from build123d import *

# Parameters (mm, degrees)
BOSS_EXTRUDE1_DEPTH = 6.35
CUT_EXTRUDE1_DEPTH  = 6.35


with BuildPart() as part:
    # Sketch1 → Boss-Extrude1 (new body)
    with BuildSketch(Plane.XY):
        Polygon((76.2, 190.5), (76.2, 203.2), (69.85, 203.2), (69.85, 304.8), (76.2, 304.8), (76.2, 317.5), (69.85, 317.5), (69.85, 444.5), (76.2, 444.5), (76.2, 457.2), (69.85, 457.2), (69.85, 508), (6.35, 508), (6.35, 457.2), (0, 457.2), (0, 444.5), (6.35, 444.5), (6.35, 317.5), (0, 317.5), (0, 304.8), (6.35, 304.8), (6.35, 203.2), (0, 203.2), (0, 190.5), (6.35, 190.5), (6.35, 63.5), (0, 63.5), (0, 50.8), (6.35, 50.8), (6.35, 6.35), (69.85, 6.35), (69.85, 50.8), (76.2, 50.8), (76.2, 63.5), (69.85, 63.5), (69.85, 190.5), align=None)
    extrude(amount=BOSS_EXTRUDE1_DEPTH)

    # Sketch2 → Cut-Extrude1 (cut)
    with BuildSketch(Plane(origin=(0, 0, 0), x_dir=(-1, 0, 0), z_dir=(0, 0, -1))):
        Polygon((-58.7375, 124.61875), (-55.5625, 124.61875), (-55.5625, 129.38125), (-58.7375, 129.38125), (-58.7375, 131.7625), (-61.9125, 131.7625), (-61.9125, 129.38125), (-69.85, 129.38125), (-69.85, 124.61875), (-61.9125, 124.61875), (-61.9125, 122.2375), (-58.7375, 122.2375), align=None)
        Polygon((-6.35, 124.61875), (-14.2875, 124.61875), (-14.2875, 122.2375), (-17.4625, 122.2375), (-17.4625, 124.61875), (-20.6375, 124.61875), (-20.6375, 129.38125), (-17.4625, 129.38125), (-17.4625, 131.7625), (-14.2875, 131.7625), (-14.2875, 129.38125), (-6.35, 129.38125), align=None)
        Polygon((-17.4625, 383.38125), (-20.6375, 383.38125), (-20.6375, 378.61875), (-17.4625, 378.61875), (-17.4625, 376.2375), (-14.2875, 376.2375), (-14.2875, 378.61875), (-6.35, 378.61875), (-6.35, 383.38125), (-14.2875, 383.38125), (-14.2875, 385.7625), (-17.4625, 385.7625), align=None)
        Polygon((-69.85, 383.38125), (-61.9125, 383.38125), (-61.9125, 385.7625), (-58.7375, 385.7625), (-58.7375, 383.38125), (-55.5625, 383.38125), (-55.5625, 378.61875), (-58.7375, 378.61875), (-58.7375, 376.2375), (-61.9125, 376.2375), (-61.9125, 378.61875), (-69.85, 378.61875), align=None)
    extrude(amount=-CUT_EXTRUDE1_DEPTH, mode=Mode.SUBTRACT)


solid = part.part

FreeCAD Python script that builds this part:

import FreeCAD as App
import Part
import Sketcher

V = App.Vector
Q = App.Units.Quantity

doc = App.newDocument("Part")
body = doc.addObject("PartDesign::Body", "Body")

sketch1 = body.newObject("Sketcher::SketchObject", "Sketch")
sketch1.AttachmentSupport = (doc.getObject("XY_Plane"), [""])
sketch1.MapMode = "FlatFace"
sketch1.addGeometry([
    Part.LineSegment(V(76, 190, 0), V(76, 203, 0)),
    Part.LineSegment(V(76, 203, 0), V(70, 203, 0)),
    Part.LineSegment(V(70, 203, 0), V(70, 305, 0)),
    Part.LineSegment(V(70, 305, 0), V(76, 305, 0)),
    Part.LineSegment(V(76, 305, 0), V(76, 318, 0)),
    Part.LineSegment(V(76, 318, 0), V(70, 318, 0)),
    Part.LineSegment(V(70, 318, 0), V(70, 444, 0)),
    Part.LineSegment(V(70, 444, 0), V(76, 444, 0)),
    Part.LineSegment(V(76, 444, 0), V(76, 457, 0)),
    Part.LineSegment(V(76, 457, 0), V(70, 457, 0)),
    Part.LineSegment(V(70, 457, 0), V(70, 508, 0)),
    Part.LineSegment(V(70, 508, 0), V(6, 508, 0)),
    Part.LineSegment(V(6, 508, 0), V(6, 457, 0)),
    Part.LineSegment(V(6, 457, 0), V(0, 457, 0)),
    Part.LineSegment(V(0, 457, 0), V(0, 444, 0)),
    Part.LineSegment(V(0, 444, 0), V(6, 444, 0)),
    Part.LineSegment(V(6, 444, 0), V(6, 318, 0)),
    Part.LineSegment(V(6, 318, 0), V(0, 318, 0)),
    Part.LineSegment(V(0, 318, 0), V(0, 305, 0)),
    Part.LineSegment(V(0, 305, 0), V(6, 305, 0)),
    Part.LineSegment(V(6, 305, 0), V(6, 203, 0)),
    Part.LineSegment(V(6, 203, 0), V(0, 203, 0)),
    Part.LineSegment(V(0, 203, 0), V(0, 190, 0)),
    Part.LineSegment(V(0, 190, 0), V(6, 190, 0)),
    Part.LineSegment(V(6, 190, 0), V(6, 64, 0)),
    Part.LineSegment(V(6, 64, 0), V(0, 64, 0)),
    Part.LineSegment(V(0, 64, 0), V(0, 51, 0)),
    Part.LineSegment(V(0, 51, 0), V(6, 51, 0)),
    Part.LineSegment(V(6, 51, 0), V(6, 6, 0)),
    Part.LineSegment(V(6, 6, 0), V(70, 6, 0)),
    Part.LineSegment(V(70, 6, 0), V(70, 51, 0)),
    Part.LineSegment(V(70, 51, 0), V(76, 51, 0)),
    Part.LineSegment(V(76, 51, 0), V(76, 64, 0)),
    Part.LineSegment(V(76, 64, 0), V(70, 64, 0)),
    Part.LineSegment(V(70, 64, 0), V(70, 190, 0)),
    Part.LineSegment(V(70, 190, 0), V(76, 190, 0)),
], False)
sketch1.addConstraint([
    Sketcher.Constraint("Coincident", 0, 2, 1, 1),
    Sketcher.Constraint("Coincident", 1, 2, 2, 1),
    Sketcher.Constraint("Coincident", 2, 2, 3, 1),
    Sketcher.Constraint("Coincident", 3, 2, 4, 1),
    Sketcher.Constraint("Coincident", 4, 2, 5, 1),
    Sketcher.Constraint("Coincident", 5, 2, 6, 1),
    Sketcher.Constraint("Coincident", 6, 2, 7, 1),
    Sketcher.Constraint("Coincident", 7, 2, 8, 1),
    Sketcher.Constraint("Coincident", 8, 2, 9, 1),
    Sketcher.Constraint("Coincident", 9, 2, 10, 1),
    Sketcher.Constraint("Coincident", 10, 2, 11, 1),
    Sketcher.Constraint("Coincident", 11, 2, 12, 1),
    Sketcher.Constraint("Coincident", 12, 2, 13, 1),
    Sketcher.Constraint("Coincident", 13, 2, 14, 1),
    Sketcher.Constraint("Coincident", 14, 2, 15, 1),
    Sketcher.Constraint("Coincident", 15, 2, 16, 1),
    Sketcher.Constraint("Coincident", 16, 2, 17, 1),
    Sketcher.Constraint("Coincident", 17, 2, 18, 1),
    Sketcher.Constraint("Coincident", 18, 2, 19, 1),
    Sketcher.Constraint("Coincident", 19, 2, 20, 1),
    Sketcher.Constraint("Coincident", 20, 2, 21, 1),
    Sketcher.Constraint("Coincident", 21, 2, 22, 1),
    Sketcher.Constraint("Coincident", 22, 2, 23, 1),
    Sketcher.Constraint("Coincident", 23, 2, 24, 1),
    Sketcher.Constraint("Coincident", 24, 2, 25, 1),
    Sketcher.Constraint("Coincident", 25, 2, 26, 1),
    Sketcher.Constraint("Coincident", 26, 2, 27, 1),
    Sketcher.Constraint("Coincident", 27, 2, 28, 1),
    Sketcher.Constraint("Coincident", 28, 2, 29, 1),
    Sketcher.Constraint("Coincident", 29, 2, 30, 1),
    Sketcher.Constraint("Coincident", 30, 2, 31, 1),
    Sketcher.Constraint("Coincident", 31, 2, 32, 1),
    Sketcher.Constraint("Coincident", 32, 2, 33, 1),
    Sketcher.Constraint("Coincident", 33, 2, 34, 1),
    Sketcher.Constraint("Coincident", 34, 2, 35, 1),
    Sketcher.Constraint("Coincident", 35, 2, 0, 1),
    Sketcher.Constraint("Vertical", 0),
    Sketcher.Constraint("Horizontal", 1),
    Sketcher.Constraint("Vertical", 2),
    Sketcher.Constraint("Horizontal", 3),
    Sketcher.Constraint("Vertical", 4),
    Sketcher.Constraint("Horizontal", 5),
    Sketcher.Constraint("Vertical", 6),
    Sketcher.Constraint("Horizontal", 7),
    Sketcher.Constraint("Vertical", 8),
    Sketcher.Constraint("Horizontal", 9),
    Sketcher.Constraint("Vertical", 10),
    Sketcher.Constraint("Horizontal", 11),
    Sketcher.Constraint("Vertical", 12),
    Sketcher.Constraint("Horizontal", 13),
    Sketcher.Constraint("Vertical", 14),
    Sketcher.Constraint("Horizontal", 15),
    Sketcher.Constraint("Vertical", 16),
    Sketcher.Constraint("Horizontal", 17),
    Sketcher.Constraint("Vertical", 18),
    Sketcher.Constraint("Horizontal", 19),
    Sketcher.Constraint("Vertical", 20),
    Sketcher.Constraint("Horizontal", 21),
    Sketcher.Constraint("Vertical", 22),
    Sketcher.Constraint("Horizontal", 23),
    Sketcher.Constraint("Vertical", 24),
    Sketcher.Constraint("Horizontal", 25),
    Sketcher.Constraint("Vertical", 26),
    Sketcher.Constraint("Horizontal", 27),
    Sketcher.Constraint("Vertical", 28),
    Sketcher.Constraint("Horizontal", 29),
    Sketcher.Constraint("Vertical", 30),
    Sketcher.Constraint("Horizontal", 31),
    Sketcher.Constraint("Vertical", 32),
    Sketcher.Constraint("Horizontal", 33),
    Sketcher.Constraint("Vertical", 34),
    Sketcher.Constraint("Horizontal", 35),
    Sketcher.Constraint("PointOnObject", 13, 2, -2),
    Sketcher.Constraint("PointOnObject", 17, 2, -2),
    Sketcher.Constraint("PointOnObject", 21, 2, -2),
    Sketcher.Constraint("PointOnObject", 25, 2, -2),
    Sketcher.Constraint("Horizontal", 9, 2, 12, 2),
    Sketcher.Constraint("Horizontal", 7, 2, 14, 2),
    Sketcher.Constraint("Horizontal", 5, 2, 16, 2),
    Sketcher.Constraint("Horizontal", 3, 2, 18, 2),
    Sketcher.Constraint("Horizontal", 1, 2, 20, 2),
    Sketcher.Constraint("Horizontal", 27, 2, 30, 2),
    Sketcher.Constraint("Horizontal", 25, 2, 32, 2),
    Sketcher.Constraint("Horizontal", 23, 2, 34, 2),
    Sketcher.Constraint("Vertical", 0, 2, 3, 2),
    Sketcher.Constraint("Vertical", 2, 2, 5, 2),
    Sketcher.Constraint("Vertical", 4, 2, 7, 2),
    Sketcher.Constraint("Vertical", 6, 2, 9, 2),
    Sketcher.Constraint("Vertical", 12, 2, 15, 2),
    Sketcher.Constraint("Vertical", 16, 2, 19, 2),
    Sketcher.Constraint("Vertical", 20, 2, 23, 2),
    Sketcher.Constraint("Vertical", 24, 2, 27, 2),
    Sketcher.Constraint("Vertical", 10, 2, 29, 2),
    Sketcher.Constraint("Vertical", 8, 2, 31, 2),
    Sketcher.Constraint("Vertical", 30, 2, 33, 2),
    Sketcher.Constraint("Equal", 9, 13),
    Sketcher.Constraint("Equal", 0, 4),
    Sketcher.Constraint("Equal", 4, 8),
    Sketcher.Constraint("Equal", 16, 24),
    Sketcher.Constraint("Equal", 22, 26),
    Sketcher.Constraint("DistanceY", 2, 1, 2, 2, Q("4 in")),
    Sketcher.Constraint("DistanceY", 6, 1, 6, 2, Q("5 in")),
    Sketcher.Constraint("DistanceY", 10, 1, 10, 2, Q("2 in")),
    Sketcher.Constraint("DistanceX", 11, 2, 11, 1, Q("2.5 in")),
    Sketcher.Constraint("DistanceY", 0, 1, 0, 2, Q("0.5 in")),
    Sketcher.Constraint("DistanceX", -1, 1, 0, 2, Q("3 in")),
    Sketcher.Constraint("DistanceY", -1, 1, 0, 2, Q("8 in")),
    Sketcher.Constraint("DistanceY", 28, 2, 28, 1, Q("1.75 in")),
])
pad1 = body.newObject("PartDesign::Pad", "Pad")
pad1.Profile = sketch1
pad1.Length = Q("0.25 in")

sketch2 = body.newObject("Sketcher::SketchObject", "Sketch001")
sketch2.AttachmentSupport = (doc.getObject("XY_Plane"), [""])
sketch2.MapMode = "FlatFace"
sketch2.addGeometry([
    Part.LineSegment(V(58.7, 124.6, 0), V(55.6, 124.6, 0)),
    Part.LineSegment(V(55.6, 124.6, 0), V(55.6, 129.4, 0)),
    Part.LineSegment(V(55.6, 129.4, 0), V(58.7, 129.4, 0)),
    Part.LineSegment(V(58.7, 129.4, 0), V(58.7, 131.8, 0)),
    Part.LineSegment(V(58.7, 131.8, 0), V(61.9, 131.8, 0)),
    Part.LineSegment(V(61.9, 131.8, 0), V(61.9, 129.4, 0)),
    Part.LineSegment(V(61.9, 129.4, 0), V(69.8, 129.4, 0)),
    Part.LineSegment(V(69.8, 129.4, 0), V(69.8, 124.6, 0)),
    Part.LineSegment(V(69.8, 124.6, 0), V(61.9, 124.6, 0)),
    Part.LineSegment(V(61.9, 124.6, 0), V(61.9, 122.2, 0)),
    Part.LineSegment(V(61.9, 122.2, 0), V(58.7, 122.2, 0)),
    Part.LineSegment(V(58.7, 122.2, 0), V(58.7, 124.6, 0)),
    Part.LineSegment(V(14.3, 124.6, 0), V(6.3, 124.6, 0)),
    Part.LineSegment(V(6.3, 124.6, 0), V(6.3, 129.4, 0)),
    Part.LineSegment(V(6.3, 129.4, 0), V(14.3, 129.4, 0)),
    Part.LineSegment(V(14.3, 129.4, 0), V(14.3, 131.8, 0)),
    Part.LineSegment(V(14.3, 131.8, 0), V(17.5, 131.8, 0)),
    Part.LineSegment(V(17.5, 131.8, 0), V(17.5, 129.4, 0)),
    Part.LineSegment(V(17.5, 129.4, 0), V(20.6, 129.4, 0)),
    Part.LineSegment(V(20.6, 129.4, 0), V(20.6, 124.6, 0)),
    Part.LineSegment(V(20.6, 124.6, 0), V(17.5, 124.6, 0)),
    Part.LineSegment(V(17.5, 124.6, 0), V(17.5, 122.2, 0)),
    Part.LineSegment(V(17.5, 122.2, 0), V(14.3, 122.2, 0)),
    Part.LineSegment(V(14.3, 122.2, 0), V(14.3, 124.6, 0)),
    Part.LineSegment(V(17.5, 383.4, 0), V(20.6, 383.4, 0)),
    Part.LineSegment(V(20.6, 383.4, 0), V(20.6, 378.6, 0)),
    Part.LineSegment(V(20.6, 378.6, 0), V(17.5, 378.6, 0)),
    Part.LineSegment(V(17.5, 378.6, 0), V(17.5, 376.2, 0)),
    Part.LineSegment(V(17.5, 376.2, 0), V(14.3, 376.2, 0)),
    Part.LineSegment(V(14.3, 376.2, 0), V(14.3, 378.6, 0)),
    Part.LineSegment(V(14.3, 378.6, 0), V(6.3, 378.6, 0)),
    Part.LineSegment(V(6.3, 378.6, 0), V(6.3, 383.4, 0)),
    Part.LineSegment(V(6.3, 383.4, 0), V(14.3, 383.4, 0)),
    Part.LineSegment(V(14.3, 383.4, 0), V(14.3, 385.8, 0)),
    Part.LineSegment(V(14.3, 385.8, 0), V(17.5, 385.8, 0)),
    Part.LineSegment(V(17.5, 385.8, 0), V(17.5, 383.4, 0)),
    Part.LineSegment(V(61.9, 383.4, 0), V(69.8, 383.4, 0)),
    Part.LineSegment(V(69.8, 383.4, 0), V(69.8, 378.6, 0)),
    Part.LineSegment(V(69.8, 378.6, 0), V(61.9, 378.6, 0)),
    Part.LineSegment(V(61.9, 378.6, 0), V(61.9, 376.2, 0)),
    Part.LineSegment(V(61.9, 376.2, 0), V(58.7, 376.2, 0)),
    Part.LineSegment(V(58.7, 376.2, 0), V(58.7, 378.6, 0)),
    Part.LineSegment(V(58.7, 378.6, 0), V(55.6, 378.6, 0)),
    Part.LineSegment(V(55.6, 378.6, 0), V(55.6, 383.4, 0)),
    Part.LineSegment(V(55.6, 383.4, 0), V(58.7, 383.4, 0)),
    Part.LineSegment(V(58.7, 383.4, 0), V(58.7, 385.8, 0)),
    Part.LineSegment(V(58.7, 385.8, 0), V(61.9, 385.8, 0)),
    Part.LineSegment(V(61.9, 385.8, 0), V(61.9, 383.4, 0)),
], False)
sketch2.addConstraint([
    Sketcher.Constraint("Coincident", 0, 2, 1, 1),
    Sketcher.Constraint("Coincident", 1, 2, 2, 1),
    Sketcher.Constraint("Coincident", 2, 2, 3, 1),
    Sketcher.Constraint("Coincident", 3, 2, 4, 1),
    Sketcher.Constraint("Coincident", 4, 2, 5, 1),
    Sketcher.Constraint("Coincident", 5, 2, 6, 1),
    Sketcher.Constraint("Coincident", 6, 2, 7, 1),
    Sketcher.Constraint("Coincident", 7, 2, 8, 1),
    Sketcher.Constraint("Coincident", 8, 2, 9, 1),
    Sketcher.Constraint("Coincident", 9, 2, 10, 1),
    Sketcher.Constraint("Coincident", 10, 2, 11, 1),
    Sketcher.Constraint("Coincident", 11, 2, 0, 1),
    Sketcher.Constraint("Coincident", 12, 2, 13, 1),
    Sketcher.Constraint("Coincident", 13, 2, 14, 1),
    Sketcher.Constraint("Coincident", 14, 2, 15, 1),
    Sketcher.Constraint("Coincident", 15, 2, 16, 1),
    Sketcher.Constraint("Coincident", 16, 2, 17, 1),
    Sketcher.Constraint("Coincident", 17, 2, 18, 1),
    Sketcher.Constraint("Coincident", 18, 2, 19, 1),
    Sketcher.Constraint("Coincident", 19, 2, 20, 1),
    Sketcher.Constraint("Coincident", 20, 2, 21, 1),
    Sketcher.Constraint("Coincident", 21, 2, 22, 1),
    Sketcher.Constraint("Coincident", 22, 2, 23, 1),
    Sketcher.Constraint("Coincident", 23, 2, 12, 1),
    Sketcher.Constraint("Coincident", 24, 2, 25, 1),
    Sketcher.Constraint("Coincident", 25, 2, 26, 1),
    Sketcher.Constraint("Coincident", 26, 2, 27, 1),
    Sketcher.Constraint("Coincident", 27, 2, 28, 1),
    Sketcher.Constraint("Coincident", 28, 2, 29, 1),
    Sketcher.Constraint("Coincident", 29, 2, 30, 1),
    Sketcher.Constraint("Coincident", 30, 2, 31, 1),
    Sketcher.Constraint("Coincident", 31, 2, 32, 1),
    Sketcher.Constraint("Coincident", 32, 2, 33, 1),
    Sketcher.Constraint("Coincident", 33, 2, 34, 1),
    Sketcher.Constraint("Coincident", 34, 2, 35, 1),
    Sketcher.Constraint("Coincident", 35, 2, 24, 1),
    Sketcher.Constraint("Coincident", 36, 2, 37, 1),
    Sketcher.Constraint("Coincident", 37, 2, 38, 1),
    Sketcher.Constraint("Coincident", 38, 2, 39, 1),
    Sketcher.Constraint("Coincident", 39, 2, 40, 1),
    Sketcher.Constraint("Coincident", 40, 2, 41, 1),
    Sketcher.Constraint("Coincident", 41, 2, 42, 1),
    Sketcher.Constraint("Coincident", 42, 2, 43, 1),
    Sketcher.Constraint("Coincident", 43, 2, 44, 1),
    Sketcher.Constraint("Coincident", 44, 2, 45, 1),
    Sketcher.Constraint("Coincident", 45, 2, 46, 1),
    Sketcher.Constraint("Coincident", 46, 2, 47, 1),
    Sketcher.Constraint("Coincident", 47, 2, 36, 1),
    Sketcher.Constraint("Horizontal", 0),
    Sketcher.Constraint("Vertical", 1),
    Sketcher.Constraint("Horizontal", 2),
    Sketcher.Constraint("Vertical", 3),
    Sketcher.Constraint("Horizontal", 4),
    Sketcher.Constraint("Vertical", 5),
    Sketcher.Constraint("Horizontal", 6),
    Sketcher.Constraint("Vertical", 7),
    Sketcher.Constraint("Horizontal", 8),
    Sketcher.Constraint("Vertical", 9),
    Sketcher.Constraint("Horizontal", 10),
    Sketcher.Constraint("Vertical", 11),
    Sketcher.Constraint("Horizontal", 12),
    Sketcher.Constraint("Vertical", 13),
    Sketcher.Constraint("Horizontal", 14),
    Sketcher.Constraint("Vertical", 15),
    Sketcher.Constraint("Horizontal", 16),
    Sketcher.Constraint("Vertical", 17),
    Sketcher.Constraint("Horizontal", 18),
    Sketcher.Constraint("Vertical", 19),
    Sketcher.Constraint("Horizontal", 20),
    Sketcher.Constraint("Vertical", 21),
    Sketcher.Constraint("Horizontal", 22),
    Sketcher.Constraint("Vertical", 23),
    Sketcher.Constraint("Horizontal", 24),
    Sketcher.Constraint("Vertical", 25),
    Sketcher.Constraint("Horizontal", 26),
    Sketcher.Constraint("Vertical", 27),
    Sketcher.Constraint("Horizontal", 28),
    Sketcher.Constraint("Vertical", 29),
    Sketcher.Constraint("Horizontal", 30),
    Sketcher.Constraint("Vertical", 31),
    Sketcher.Constraint("Horizontal", 32),
    Sketcher.Constraint("Vertical", 33),
    Sketcher.Constraint("Horizontal", 34),
    Sketcher.Constraint("Vertical", 35),
    Sketcher.Constraint("Horizontal", 36),
    Sketcher.Constraint("Vertical", 37),
    Sketcher.Constraint("Horizontal", 38),
    Sketcher.Constraint("Vertical", 39),
    Sketcher.Constraint("Horizontal", 40),
    Sketcher.Constraint("Vertical", 41),
    Sketcher.Constraint("Horizontal", 42),
    Sketcher.Constraint("Vertical", 43),
    Sketcher.Constraint("Horizontal", 44),
    Sketcher.Constraint("Vertical", 45),
    Sketcher.Constraint("Horizontal", 46),
    Sketcher.Constraint("Vertical", 47),
    Sketcher.Constraint("Horizontal", 2, 2, 5, 2),
    Sketcher.Constraint("Horizontal", 0, 2, 7, 2),
    Sketcher.Constraint("Horizontal", 11, 2, 12, 2),
    Sketcher.Constraint("Horizontal", 6, 2, 13, 2),
    Sketcher.Constraint("Horizontal", 4, 2, 15, 2),
    Sketcher.Constraint("Horizontal", 14, 2, 17, 2),
    Sketcher.Constraint("Horizontal", 12, 2, 19, 2),
    Sketcher.Constraint("Horizontal", 10, 2, 21, 2),
    Sketcher.Constraint("Horizontal", 26, 2, 29, 2),
    Sketcher.Constraint("Horizontal", 24, 2, 31, 2),
    Sketcher.Constraint("Horizontal", 35, 2, 36, 2),
    Sketcher.Constraint("Horizontal", 30, 2, 37, 2),
    Sketcher.Constraint("Horizontal", 28, 2, 39, 2),
    Sketcher.Constraint("Horizontal", 38, 2, 41, 2),
    Sketcher.Constraint("Horizontal", 36, 2, 43, 2),
    Sketcher.Constraint("Horizontal", 34, 2, 45, 2),
    Sketcher.Constraint("Vertical", 5, 2, 8, 2),
    Sketcher.Constraint("Vertical", 3, 2, 10, 2),
    Sketcher.Constraint("Vertical", 17, 2, 20, 2),
    Sketcher.Constraint("Vertical", 15, 2, 22, 2),
    Sketcher.Constraint("Vertical", 19, 2, 24, 2),
    Sketcher.Constraint("Vertical", 21, 2, 26, 2),
    Sketcher.Constraint("Vertical", 23, 2, 28, 2),
    Sketcher.Constraint("Vertical", 13, 2, 30, 2),
    Sketcher.Constraint("Vertical", 29, 2, 32, 2),
    Sketcher.Constraint("Vertical", 27, 2, 34, 2),
    Sketcher.Constraint("Vertical", 7, 2, 36, 2),
    Sketcher.Constraint("Vertical", 9, 2, 38, 2),
    Sketcher.Constraint("Vertical", 11, 2, 40, 2),
    Sketcher.Constraint("Vertical", 1, 2, 42, 2),
    Sketcher.Constraint("Vertical", 41, 2, 44, 2),
    Sketcher.Constraint("Vertical", 39, 2, 46, 2),
    Sketcher.Constraint("Equal", 2, 4),
    Sketcher.Constraint("Equal", 8, 12),
    Sketcher.Constraint("Equal", 10, 16),
    Sketcher.Constraint("Equal", 16, 18),
    Sketcher.Constraint("Equal", 5, 9),
    Sketcher.Constraint("Equal", 19, 25),
    Sketcher.Constraint("Equal", 23, 27),
    Sketcher.Constraint("Equal", 29, 33),
    Sketcher.Constraint("DistanceY", 18, 2, 24, 2, Q("10 in")),
    Sketcher.Constraint("DistanceX", 16, 2, 1, 2, Q("1.5 in")),
    Sketcher.Constraint("DistanceX", 0, 2, 0, 1, Q("0.125 in")),
    Sketcher.Constraint("DistanceX", 6, 1, 6, 2, Q("0.3125 in")),
    Sketcher.Constraint("DistanceY", 1, 1, 1, 2, Q("0.1875 in")),
    Sketcher.Constraint("DistanceY", 3, 1, 3, 2, Q("0.09375 in")),
    Sketcher.Constraint("DistanceX", -1, 1, 6, 2, Q("2.75 in")),
    Sketcher.Constraint("DistanceY", -1, 1, 0, 2, Q("4.90625 in")),
])
pocket1 = body.newObject("PartDesign::Pocket", "Pocket")
pocket1.Profile = sketch2
pocket1.Length = Q("0.25 in")
pocket1.Reversed = True

doc.recompute()
